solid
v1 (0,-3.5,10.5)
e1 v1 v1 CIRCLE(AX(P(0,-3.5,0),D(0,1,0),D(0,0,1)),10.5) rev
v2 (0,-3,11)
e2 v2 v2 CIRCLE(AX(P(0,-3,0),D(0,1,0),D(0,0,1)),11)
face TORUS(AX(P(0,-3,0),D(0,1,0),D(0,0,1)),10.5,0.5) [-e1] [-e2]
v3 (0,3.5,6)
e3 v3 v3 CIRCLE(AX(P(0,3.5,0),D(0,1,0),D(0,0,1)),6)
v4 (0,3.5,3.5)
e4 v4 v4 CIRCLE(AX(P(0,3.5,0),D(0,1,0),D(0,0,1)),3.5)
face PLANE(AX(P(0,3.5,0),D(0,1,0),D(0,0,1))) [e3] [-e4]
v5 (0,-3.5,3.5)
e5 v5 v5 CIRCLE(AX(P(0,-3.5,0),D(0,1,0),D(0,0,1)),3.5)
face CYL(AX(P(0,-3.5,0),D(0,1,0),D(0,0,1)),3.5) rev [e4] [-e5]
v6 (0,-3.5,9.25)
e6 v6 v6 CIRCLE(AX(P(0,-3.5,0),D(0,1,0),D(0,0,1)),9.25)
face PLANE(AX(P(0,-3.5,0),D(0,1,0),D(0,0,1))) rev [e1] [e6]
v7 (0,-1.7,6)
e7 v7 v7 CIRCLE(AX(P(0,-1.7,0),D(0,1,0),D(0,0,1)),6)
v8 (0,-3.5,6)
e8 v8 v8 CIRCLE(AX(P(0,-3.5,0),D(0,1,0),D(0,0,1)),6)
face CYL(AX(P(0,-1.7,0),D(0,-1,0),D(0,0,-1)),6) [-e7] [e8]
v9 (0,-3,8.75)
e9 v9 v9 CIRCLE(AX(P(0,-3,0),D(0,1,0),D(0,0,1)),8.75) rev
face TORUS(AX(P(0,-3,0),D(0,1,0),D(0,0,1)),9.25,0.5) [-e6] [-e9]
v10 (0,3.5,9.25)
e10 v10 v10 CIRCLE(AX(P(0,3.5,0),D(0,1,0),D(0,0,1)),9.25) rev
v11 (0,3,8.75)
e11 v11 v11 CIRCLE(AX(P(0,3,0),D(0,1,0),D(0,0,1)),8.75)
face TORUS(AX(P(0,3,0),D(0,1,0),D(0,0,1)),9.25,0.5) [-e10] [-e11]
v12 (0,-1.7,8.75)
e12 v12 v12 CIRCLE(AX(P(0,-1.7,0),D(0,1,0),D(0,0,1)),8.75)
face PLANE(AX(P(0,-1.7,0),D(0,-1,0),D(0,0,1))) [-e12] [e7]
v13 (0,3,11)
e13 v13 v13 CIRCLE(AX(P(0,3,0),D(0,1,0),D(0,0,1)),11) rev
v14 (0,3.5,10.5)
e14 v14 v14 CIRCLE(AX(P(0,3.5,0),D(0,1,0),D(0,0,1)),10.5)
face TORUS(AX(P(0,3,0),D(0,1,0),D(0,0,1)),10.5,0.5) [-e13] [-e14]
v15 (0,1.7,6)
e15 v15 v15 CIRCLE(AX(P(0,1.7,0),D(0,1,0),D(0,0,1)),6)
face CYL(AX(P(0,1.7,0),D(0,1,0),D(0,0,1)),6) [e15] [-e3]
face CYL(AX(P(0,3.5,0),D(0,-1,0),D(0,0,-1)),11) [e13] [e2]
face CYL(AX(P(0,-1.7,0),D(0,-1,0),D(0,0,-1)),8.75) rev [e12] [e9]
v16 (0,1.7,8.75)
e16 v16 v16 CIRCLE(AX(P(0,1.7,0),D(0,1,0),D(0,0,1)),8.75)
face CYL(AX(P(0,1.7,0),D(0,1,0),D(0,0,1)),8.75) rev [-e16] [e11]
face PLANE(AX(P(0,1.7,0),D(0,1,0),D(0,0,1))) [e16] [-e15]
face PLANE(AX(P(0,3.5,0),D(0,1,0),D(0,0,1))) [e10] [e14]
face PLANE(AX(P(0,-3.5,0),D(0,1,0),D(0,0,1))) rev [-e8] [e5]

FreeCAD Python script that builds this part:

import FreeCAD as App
import Part
import Sketcher
Q = App.Units.Quantity


def edges_at(feature, points):
    """Names of the edges that pass closest to the given points."""
    edges = feature.Shape.Edges
    near = lambda p: min(range(len(edges)), key=lambda i: edges[i].distToShape(Part.Vertex(*p))[0])
    return sorted({f"Edge{near(p) + 1}" for p in points})

doc = App.newDocument("Part")
body = doc.addObject("PartDesign::Body", "Body")

# Sketch on XZ plane
sketch1 = doc.addObject("Sketcher::SketchObject", "Sketch")
body.addObject(sketch1)
sketch1.AttachmentSupport = (doc.XZ_Plane, [""])
sketch1.MapMode = "FlatFace"
sketch1.addGeometry(Part.Circle(App.Vector(0, 0, 0), App.Vector(0, 0, 1), 11), False)
sketch1.addConstraint([
    Sketcher.Constraint("Coincident", 0, 3, -1, 1),
    Sketcher.Constraint("Diameter", 0, Q("22 mm")),
])
pad1 = doc.addObject("PartDesign::Pad", "Pad")
body.addObject(pad1)
pad1.Profile = sketch1
pad1.Length = 7
pad1.Midplane = True

# Sketch on XZ plane
sketch2 = doc.addObject("Sketcher::SketchObject", "Sketch001")
body.addObject(sketch2)
sketch2.AttachmentSupport = (doc.XZ_Plane, [""])
sketch2.MapMode = "FlatFace"
sketch2.AttachmentOffset = App.Placement(App.Vector(0, 0, -3.5), App.Rotation())
sketch2.addGeometry(Part.Circle(App.Vector(0, 0, 0), App.Vector(0, 0, 1), 3.5), False)
sketch2.addConstraint([
    Sketcher.Constraint("Coincident", 0, 3, -1, 1),
    Sketcher.Constraint("Diameter", 0, Q("7 mm")),
])
pocket1 = doc.addObject("PartDesign::Pocket", "Pocket")
body.addObject(pocket1)
pocket1.Profile = sketch2
pocket1.Type = "ThroughAll"
pocket1.Reversed = True

# Sketch on XZ plane
sketch3 = doc.addObject("Sketcher::SketchObject", "Sketch002")
body.addObject(sketch3)
sketch3.AttachmentSupport = (doc.XZ_Plane, [""])
sketch3.MapMode = "FlatFace"
sketch3.AttachmentOffset = App.Placement(App.Vector(0, 0, -3.5), App.Rotation())
sketch3.addGeometry([
    Part.Circle(App.Vector(0, 0, 0), App.Vector(0, 0, 1), 8.75),
    Part.Circle(App.Vector(0, 0, 0), App.Vector(0, 0, 1), 6),
], False)
sketch3.addConstraint([
    Sketcher.Constraint("Coincident", 0, 3, -1, 1),
    Sketcher.Constraint("Coincident", 1, 3, -1, 1),
    Sketcher.Constraint("Diameter", 1, Q("12 mm")),
    Sketcher.Constraint("Diameter", 0, Q("17.5 mm")),
])
pocket2 = doc.addObject("PartDesign::Pocket", "Pocket001")
body.addObject(pocket2)
pocket2.Profile = sketch3
pocket2.Length = 1.8
pocket2.Reversed = True
doc.recompute()

mirrored = doc.addObject("PartDesign::Mirrored", "Mirrored")
body.addObject(mirrored)
mirrored.Originals = [pocket2]
mirrored.MirrorPlane = (doc.XZ_Plane, [""])
body.Tip = mirrored
doc.recompute()

fillet = doc.addObject("PartDesign::Fillet", "Fillet")
body.addObject(fillet)
fillet.Base = (mirrored, edges_at(mirrored, [
    (-8.75, 3.5, 0),
    (-11, -3.5, 0),
    (-8.75, -3.5, 0),
    (-11, 3.5, 0),
]))
fillet.Radius = 0.5

doc.recompute()
